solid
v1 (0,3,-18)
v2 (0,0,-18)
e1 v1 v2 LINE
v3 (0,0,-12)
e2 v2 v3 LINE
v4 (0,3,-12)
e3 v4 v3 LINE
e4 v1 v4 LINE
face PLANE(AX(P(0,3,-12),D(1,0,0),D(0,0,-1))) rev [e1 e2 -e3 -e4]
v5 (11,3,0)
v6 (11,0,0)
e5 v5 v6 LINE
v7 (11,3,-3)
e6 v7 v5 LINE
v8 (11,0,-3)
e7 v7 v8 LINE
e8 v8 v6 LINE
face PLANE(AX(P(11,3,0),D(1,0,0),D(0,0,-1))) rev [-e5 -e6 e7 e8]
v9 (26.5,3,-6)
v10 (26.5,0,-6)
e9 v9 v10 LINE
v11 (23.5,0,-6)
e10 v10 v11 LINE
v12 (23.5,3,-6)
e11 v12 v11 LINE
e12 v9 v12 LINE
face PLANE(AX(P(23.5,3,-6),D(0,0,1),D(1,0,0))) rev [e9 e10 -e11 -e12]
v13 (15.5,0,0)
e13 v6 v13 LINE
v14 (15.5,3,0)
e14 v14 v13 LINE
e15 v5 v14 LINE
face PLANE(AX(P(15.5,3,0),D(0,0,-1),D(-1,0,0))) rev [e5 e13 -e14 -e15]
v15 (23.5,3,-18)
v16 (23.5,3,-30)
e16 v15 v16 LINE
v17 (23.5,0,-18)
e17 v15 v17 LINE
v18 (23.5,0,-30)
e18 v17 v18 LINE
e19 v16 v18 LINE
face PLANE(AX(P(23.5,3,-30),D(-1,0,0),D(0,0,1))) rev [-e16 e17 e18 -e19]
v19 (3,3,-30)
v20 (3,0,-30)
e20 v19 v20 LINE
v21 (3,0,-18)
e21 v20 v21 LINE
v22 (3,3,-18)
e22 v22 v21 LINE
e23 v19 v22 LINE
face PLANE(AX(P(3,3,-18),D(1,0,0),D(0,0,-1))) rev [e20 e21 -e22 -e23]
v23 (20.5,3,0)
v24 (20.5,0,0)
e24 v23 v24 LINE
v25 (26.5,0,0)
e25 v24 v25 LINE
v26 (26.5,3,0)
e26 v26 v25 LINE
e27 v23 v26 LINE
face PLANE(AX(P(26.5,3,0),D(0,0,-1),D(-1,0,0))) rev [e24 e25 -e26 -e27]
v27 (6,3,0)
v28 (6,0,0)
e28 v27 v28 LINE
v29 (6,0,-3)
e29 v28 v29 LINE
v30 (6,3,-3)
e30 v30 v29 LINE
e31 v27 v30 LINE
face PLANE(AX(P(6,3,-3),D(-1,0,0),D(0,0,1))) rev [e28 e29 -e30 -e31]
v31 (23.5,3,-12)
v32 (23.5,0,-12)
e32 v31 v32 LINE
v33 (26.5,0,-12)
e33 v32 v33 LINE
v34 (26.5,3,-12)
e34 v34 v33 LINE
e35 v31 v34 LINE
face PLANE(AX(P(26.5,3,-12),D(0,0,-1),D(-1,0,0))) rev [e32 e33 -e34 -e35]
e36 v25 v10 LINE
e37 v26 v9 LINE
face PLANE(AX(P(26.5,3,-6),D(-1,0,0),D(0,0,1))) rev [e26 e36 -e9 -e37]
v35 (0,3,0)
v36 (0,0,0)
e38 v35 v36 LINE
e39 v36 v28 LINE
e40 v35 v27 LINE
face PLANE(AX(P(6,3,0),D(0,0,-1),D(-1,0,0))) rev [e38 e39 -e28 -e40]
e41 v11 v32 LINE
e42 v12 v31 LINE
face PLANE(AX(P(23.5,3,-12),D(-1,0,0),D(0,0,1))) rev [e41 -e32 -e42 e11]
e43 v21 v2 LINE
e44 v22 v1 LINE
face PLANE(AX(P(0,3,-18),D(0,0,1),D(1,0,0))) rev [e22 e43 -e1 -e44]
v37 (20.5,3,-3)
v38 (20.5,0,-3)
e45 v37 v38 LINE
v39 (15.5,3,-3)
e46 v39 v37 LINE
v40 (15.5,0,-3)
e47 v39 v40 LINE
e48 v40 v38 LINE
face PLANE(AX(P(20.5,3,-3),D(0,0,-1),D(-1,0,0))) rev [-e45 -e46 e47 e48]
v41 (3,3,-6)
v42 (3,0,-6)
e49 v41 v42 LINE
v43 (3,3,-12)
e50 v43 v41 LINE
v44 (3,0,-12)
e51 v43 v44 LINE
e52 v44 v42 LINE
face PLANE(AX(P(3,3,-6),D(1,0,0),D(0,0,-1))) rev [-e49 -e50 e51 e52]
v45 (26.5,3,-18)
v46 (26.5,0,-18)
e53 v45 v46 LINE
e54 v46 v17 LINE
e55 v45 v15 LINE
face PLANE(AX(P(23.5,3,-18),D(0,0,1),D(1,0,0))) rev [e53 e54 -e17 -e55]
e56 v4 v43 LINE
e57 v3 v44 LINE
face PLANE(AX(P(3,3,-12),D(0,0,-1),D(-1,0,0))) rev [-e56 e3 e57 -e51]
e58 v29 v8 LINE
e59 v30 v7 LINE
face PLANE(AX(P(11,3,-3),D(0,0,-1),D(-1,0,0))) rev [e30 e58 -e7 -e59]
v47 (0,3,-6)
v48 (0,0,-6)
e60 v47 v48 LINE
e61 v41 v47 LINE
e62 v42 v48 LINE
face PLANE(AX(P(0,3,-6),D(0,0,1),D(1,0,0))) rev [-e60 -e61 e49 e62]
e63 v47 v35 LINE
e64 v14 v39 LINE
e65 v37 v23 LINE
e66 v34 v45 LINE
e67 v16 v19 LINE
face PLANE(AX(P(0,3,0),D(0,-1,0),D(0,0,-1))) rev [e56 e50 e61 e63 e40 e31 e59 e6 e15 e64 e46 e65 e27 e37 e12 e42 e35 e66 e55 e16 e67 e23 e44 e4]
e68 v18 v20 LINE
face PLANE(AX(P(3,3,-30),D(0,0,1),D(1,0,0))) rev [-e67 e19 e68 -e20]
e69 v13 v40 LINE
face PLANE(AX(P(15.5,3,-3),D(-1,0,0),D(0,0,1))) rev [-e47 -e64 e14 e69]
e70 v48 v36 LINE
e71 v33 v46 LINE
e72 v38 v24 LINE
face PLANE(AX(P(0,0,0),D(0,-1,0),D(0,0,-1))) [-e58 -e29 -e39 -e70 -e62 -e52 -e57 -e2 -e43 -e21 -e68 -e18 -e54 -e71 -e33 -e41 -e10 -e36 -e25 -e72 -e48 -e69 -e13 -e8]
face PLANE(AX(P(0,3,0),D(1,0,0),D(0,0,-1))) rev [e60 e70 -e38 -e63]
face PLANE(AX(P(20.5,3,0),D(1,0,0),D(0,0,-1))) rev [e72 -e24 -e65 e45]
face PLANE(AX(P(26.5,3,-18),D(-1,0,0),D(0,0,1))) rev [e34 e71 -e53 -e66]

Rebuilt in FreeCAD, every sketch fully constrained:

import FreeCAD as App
import Part
import Sketcher
from FreeCAD import Vector


def add_polygon(sketch, points):
    """Adds a closed chain of lines whose ends are joined by coincident constraints."""
    first, n = sketch.GeometryCount, len(points)
    for a, b in zip(points, points[1:] + points[:1]):
        sketch.addGeometry(Part.LineSegment(App.Vector(*a, 0), App.Vector(*b, 0)), False)
    for i in range(n):
        sketch.addConstraint(Sketcher.Constraint("Coincident", first + i, 2, first + (i + 1) % n, 1))

doc = App.newDocument("Part")
body = doc.addObject("PartDesign::Body", "Body")

# Sketch on XZ plane
sketch1 = body.newObject("Sketcher::SketchObject", "Sketch")
sketch1.AttachmentSupport = (doc.getObject("XZ_Plane"), [""])
sketch1.MapMode = "FlatFace"
add_polygon(sketch1, [(0, -6), (0, 0), (6, 0), (6, -3), (11, -3), (11, 0), (15.5, 0), (15.5, -3), (20.5, -3), (20.5, 0), (26.5, 0), (26.5, -6), (23.5, -6), (23.5, -12), (26.5, -12), (26.5, -18), (23.5, -18), (23.5, -30), (3, -30), (3, -18), (0, -18), (0, -12), (3, -12), (3, -6)])  # lines 0-23
sketch1.addConstraint([
    Sketcher.Constraint("Vertical", 0),
    Sketcher.Constraint("Horizontal", 1),
    Sketcher.Constraint("Vertical", 2),
    Sketcher.Constraint("Horizontal", 3),
    Sketcher.Constraint("Vertical", 4),
    Sketcher.Constraint("Horizontal", 5),
    Sketcher.Constraint("Vertical", 6),
    Sketcher.Constraint("Horizontal", 7),
    Sketcher.Constraint("Vertical", 8),
    Sketcher.Constraint("Horizontal", 9),
    Sketcher.Constraint("Vertical", 10),
    Sketcher.Constraint("Horizontal", 11),
    Sketcher.Constraint("Vertical", 12),
    Sketcher.Constraint("Horizontal", 13),
    Sketcher.Constraint("Vertical", 14),
    Sketcher.Constraint("Horizontal", 15),
    Sketcher.Constraint("Vertical", 16),
    Sketcher.Constraint("Horizontal", 17),
    Sketcher.Constraint("Vertical", 18),
    Sketcher.Constraint("Horizontal", 19),
    Sketcher.Constraint("Vertical", 20),
    Sketcher.Constraint("Horizontal", 21),
    Sketcher.Constraint("Vertical", 22),
    Sketcher.Constraint("Horizontal", 23),
    Sketcher.Constraint("Coincident", 0, 2, -1, 1),
    Sketcher.Constraint("PointOnObject", 4, 2, -1),
    Sketcher.Constraint("PointOnObject", 8, 2, -1),
    Sketcher.Constraint("PointOnObject", 19, 2, -2),
    Sketcher.Constraint("Horizontal", 3, 2, 6, 2),
    Sketcher.Constraint("Horizontal", 15, 2, 18, 2),
    Sketcher.Constraint("Horizontal", 13, 2, 20, 2),
    Sketcher.Constraint("Horizontal", 11, 2, 22, 2),
    Sketcher.Constraint("Vertical", 10, 2, 13, 2),
    Sketcher.Constraint("Vertical", 12, 2, 15, 2),
    Sketcher.Constraint("Vertical", 18, 2, 21, 2),
    Sketcher.Constraint("Equal", 3, 7),
    Sketcher.Constraint("Equal", 1, 9),
    Sketcher.Constraint("Equal", 15, 19),
    Sketcher.Constraint("Equal", 9, 0),
    Sketcher.Constraint("Equal", 23, 2),
    Sketcher.Constraint("Equal", 10, 12),
    Sketcher.Constraint("Equal", 12, 14),
    Sketcher.Constraint("DistanceX", 1, 1, 1, 2, 6.0),
    Sketcher.Constraint("DistanceX", 3, 1, 3, 2, 5.0),
    Sketcher.Constraint("DistanceX", 11, 2, 11, 1, 3.0),
    Sketcher.Constraint("DistanceY", 16, 2, 16, 1, 12.0),
    Sketcher.Constraint("DistanceX", 5, 1, 5, 2, 4.5),
])
pad1 = body.newObject("PartDesign::Pad", "Pad")
pad1.Profile = sketch1
pad1.Length = 3
pad1.Reversed = True

doc.recompute()
